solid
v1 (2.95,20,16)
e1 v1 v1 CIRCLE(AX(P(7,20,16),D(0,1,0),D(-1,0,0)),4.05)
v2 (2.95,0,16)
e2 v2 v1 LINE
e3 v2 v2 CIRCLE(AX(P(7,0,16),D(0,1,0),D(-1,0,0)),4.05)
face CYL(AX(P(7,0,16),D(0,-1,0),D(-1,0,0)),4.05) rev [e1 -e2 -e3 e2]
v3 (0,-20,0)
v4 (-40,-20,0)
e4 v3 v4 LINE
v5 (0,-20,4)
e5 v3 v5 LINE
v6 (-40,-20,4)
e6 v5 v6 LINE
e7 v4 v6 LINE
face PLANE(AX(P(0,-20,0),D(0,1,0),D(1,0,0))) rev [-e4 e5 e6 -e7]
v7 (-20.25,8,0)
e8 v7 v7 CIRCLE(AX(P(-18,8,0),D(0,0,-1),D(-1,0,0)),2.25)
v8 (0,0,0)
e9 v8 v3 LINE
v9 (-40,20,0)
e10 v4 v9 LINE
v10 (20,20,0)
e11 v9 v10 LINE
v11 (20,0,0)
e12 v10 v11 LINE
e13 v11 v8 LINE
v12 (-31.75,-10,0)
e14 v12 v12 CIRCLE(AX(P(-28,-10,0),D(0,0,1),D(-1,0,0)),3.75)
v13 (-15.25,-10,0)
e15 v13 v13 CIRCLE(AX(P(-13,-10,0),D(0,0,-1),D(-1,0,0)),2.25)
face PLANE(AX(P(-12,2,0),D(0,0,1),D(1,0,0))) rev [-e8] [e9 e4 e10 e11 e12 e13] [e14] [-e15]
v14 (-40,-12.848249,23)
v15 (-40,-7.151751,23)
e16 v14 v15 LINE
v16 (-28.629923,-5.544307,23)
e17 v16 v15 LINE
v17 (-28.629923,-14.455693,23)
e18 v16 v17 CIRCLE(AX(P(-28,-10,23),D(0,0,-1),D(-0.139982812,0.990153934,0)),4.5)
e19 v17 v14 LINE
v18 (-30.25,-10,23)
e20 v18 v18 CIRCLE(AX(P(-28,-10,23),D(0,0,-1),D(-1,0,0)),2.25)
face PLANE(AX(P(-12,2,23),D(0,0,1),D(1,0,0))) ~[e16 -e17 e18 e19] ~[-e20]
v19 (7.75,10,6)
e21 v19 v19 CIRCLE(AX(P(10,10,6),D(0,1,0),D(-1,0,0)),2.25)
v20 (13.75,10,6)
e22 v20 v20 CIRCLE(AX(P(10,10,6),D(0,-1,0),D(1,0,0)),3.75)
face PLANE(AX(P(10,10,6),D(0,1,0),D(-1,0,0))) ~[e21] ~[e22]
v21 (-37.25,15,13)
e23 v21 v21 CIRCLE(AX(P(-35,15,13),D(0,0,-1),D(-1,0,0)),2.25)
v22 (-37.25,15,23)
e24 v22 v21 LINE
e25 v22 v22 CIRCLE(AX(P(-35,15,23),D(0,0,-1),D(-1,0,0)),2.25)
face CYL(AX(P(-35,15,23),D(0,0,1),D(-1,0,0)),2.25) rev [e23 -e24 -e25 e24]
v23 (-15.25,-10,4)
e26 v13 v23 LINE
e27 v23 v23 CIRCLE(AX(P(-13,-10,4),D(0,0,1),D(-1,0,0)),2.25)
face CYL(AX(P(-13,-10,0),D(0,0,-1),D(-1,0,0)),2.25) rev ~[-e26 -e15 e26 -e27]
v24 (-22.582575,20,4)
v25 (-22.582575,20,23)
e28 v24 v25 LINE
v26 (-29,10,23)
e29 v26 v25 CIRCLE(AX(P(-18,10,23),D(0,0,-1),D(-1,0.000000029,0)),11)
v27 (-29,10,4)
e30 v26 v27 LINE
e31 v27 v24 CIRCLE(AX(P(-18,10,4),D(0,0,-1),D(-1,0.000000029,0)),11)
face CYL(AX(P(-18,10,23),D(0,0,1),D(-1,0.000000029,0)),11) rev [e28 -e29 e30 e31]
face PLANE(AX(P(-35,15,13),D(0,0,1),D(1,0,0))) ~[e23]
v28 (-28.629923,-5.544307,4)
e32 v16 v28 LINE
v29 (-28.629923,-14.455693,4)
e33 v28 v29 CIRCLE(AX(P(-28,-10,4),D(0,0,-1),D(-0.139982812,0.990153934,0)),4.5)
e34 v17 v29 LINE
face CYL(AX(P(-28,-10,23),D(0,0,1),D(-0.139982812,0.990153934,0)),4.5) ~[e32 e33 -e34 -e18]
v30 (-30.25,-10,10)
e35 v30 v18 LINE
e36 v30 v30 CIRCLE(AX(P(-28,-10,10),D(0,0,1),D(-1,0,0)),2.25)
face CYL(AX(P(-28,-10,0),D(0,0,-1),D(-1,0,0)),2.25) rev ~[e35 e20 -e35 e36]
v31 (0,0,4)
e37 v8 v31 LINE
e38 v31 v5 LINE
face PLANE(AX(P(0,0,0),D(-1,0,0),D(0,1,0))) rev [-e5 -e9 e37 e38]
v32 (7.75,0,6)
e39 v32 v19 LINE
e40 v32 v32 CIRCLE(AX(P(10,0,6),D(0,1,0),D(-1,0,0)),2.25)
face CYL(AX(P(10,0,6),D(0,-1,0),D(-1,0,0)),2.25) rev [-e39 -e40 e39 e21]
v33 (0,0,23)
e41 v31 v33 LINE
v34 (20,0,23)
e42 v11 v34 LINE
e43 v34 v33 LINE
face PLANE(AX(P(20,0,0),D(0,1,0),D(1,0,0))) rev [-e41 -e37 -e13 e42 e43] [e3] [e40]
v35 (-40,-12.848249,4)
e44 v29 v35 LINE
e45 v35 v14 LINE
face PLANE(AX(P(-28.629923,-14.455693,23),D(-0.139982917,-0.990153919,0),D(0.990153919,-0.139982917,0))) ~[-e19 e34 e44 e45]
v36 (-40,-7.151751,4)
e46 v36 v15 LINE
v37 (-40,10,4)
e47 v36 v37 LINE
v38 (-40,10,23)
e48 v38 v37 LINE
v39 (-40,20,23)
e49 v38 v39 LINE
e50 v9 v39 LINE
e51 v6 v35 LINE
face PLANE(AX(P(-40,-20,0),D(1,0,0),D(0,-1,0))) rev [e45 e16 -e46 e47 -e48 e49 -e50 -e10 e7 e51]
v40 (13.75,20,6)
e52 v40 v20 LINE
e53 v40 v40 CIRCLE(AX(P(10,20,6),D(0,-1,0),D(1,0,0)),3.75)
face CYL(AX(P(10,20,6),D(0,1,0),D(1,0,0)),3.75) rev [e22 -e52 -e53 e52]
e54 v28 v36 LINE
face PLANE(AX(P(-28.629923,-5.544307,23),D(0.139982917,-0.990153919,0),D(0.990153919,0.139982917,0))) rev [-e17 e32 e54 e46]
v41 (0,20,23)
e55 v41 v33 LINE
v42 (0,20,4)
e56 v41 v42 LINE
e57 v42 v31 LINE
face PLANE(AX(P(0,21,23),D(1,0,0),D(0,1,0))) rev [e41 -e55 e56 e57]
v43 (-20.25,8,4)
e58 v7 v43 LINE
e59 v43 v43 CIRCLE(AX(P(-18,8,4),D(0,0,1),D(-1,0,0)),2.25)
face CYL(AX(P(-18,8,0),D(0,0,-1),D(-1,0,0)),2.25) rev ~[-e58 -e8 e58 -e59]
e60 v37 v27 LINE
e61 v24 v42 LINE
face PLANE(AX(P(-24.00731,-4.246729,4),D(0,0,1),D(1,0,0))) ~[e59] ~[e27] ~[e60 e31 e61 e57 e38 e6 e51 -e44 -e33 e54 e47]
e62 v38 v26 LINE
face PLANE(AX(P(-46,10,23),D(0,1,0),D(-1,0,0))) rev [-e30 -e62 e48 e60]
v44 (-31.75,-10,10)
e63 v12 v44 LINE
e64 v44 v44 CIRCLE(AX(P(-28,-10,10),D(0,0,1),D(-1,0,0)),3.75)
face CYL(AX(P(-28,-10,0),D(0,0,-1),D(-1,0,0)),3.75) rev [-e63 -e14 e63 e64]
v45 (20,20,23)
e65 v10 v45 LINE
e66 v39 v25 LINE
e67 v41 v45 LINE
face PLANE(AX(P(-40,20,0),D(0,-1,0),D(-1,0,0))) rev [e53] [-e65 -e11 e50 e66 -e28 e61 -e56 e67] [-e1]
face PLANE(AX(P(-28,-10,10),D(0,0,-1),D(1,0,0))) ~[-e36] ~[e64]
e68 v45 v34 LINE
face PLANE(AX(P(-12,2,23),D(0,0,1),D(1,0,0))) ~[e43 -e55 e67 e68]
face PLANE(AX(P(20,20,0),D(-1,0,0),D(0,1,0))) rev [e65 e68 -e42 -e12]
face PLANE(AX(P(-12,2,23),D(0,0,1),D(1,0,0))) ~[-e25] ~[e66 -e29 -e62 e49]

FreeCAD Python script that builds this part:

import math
import FreeCAD as App
import Part
import Sketcher

V = App.Vector


def add_polygon(sketch, points):
    """Adds a closed chain of lines whose ends are joined by coincident constraints."""
    first, n = sketch.GeometryCount, len(points)
    for a, b in zip(points, points[1:] + points[:1]):
        sketch.addGeometry(Part.LineSegment(App.Vector(*a, 0), App.Vector(*b, 0)), False)
    for i in range(n):
        sketch.addConstraint(Sketcher.Constraint("Coincident", first + i, 2, first + (i + 1) % n, 1))

doc = App.newDocument("Part")
body = doc.addObject("PartDesign::Body", "Body")

# Sketch on XY plane
sketch1 = body.newObject("Sketcher::SketchObject", "Sketch")
sketch1.AttachmentSupport = (doc.getObject("XY_Plane"), [""])
sketch1.MapMode = "FlatFace"
add_polygon(sketch1, [(0, -20), (40, -20), (40, 20), (-20, 20), (-20, 0), (0, 0)])  # lines 0-5
sketch1.addGeometry(Part.Circle(V(13, -10, 0), V(0, 0, 1), 2.2), False)  # 6
sketch1.addGeometry(Part.Circle(V(28, -10, 0), V(0, 0, 1), 2.2), False)  # 7
sketch1.addGeometry(Part.Circle(V(18, 8, 0), V(0, 0, 1), 2.2), False)  # 8
sketch1.addConstraint([
    Sketcher.Constraint("Horizontal", 0),
    Sketcher.Constraint("Vertical", 1),
    Sketcher.Constraint("Horizontal", 2),
    Sketcher.Constraint("Vertical", 3),
    Sketcher.Constraint("Horizontal", 4),
    Sketcher.Constraint("Vertical", 5),
    Sketcher.Constraint("Coincident", 4, 2, -1, 1),
    Sketcher.Constraint("Equal", 6, 7),
    Sketcher.Constraint("Equal", 7, 8),
    Sketcher.Constraint("Horizontal", 6, 3, 7, 3),
    Sketcher.Constraint("Equal", 0, 1),
    Sketcher.Constraint("Equal", 4, 3),
    Sketcher.Constraint("Equal", 3, 5),
    Sketcher.Constraint("Diameter", 6, 4.5),
    Sketcher.Constraint("DistanceX", 0, 1, 0, 2, 40.0),
    Sketcher.Constraint("DistanceX", -1, 1, 6, 3, 13.0),
    Sketcher.Constraint("DistanceY", 6, 3, -1, 1, 10.0),
    Sketcher.Constraint("DistanceX", -1, 1, 7, 3, 28.0),
    Sketcher.Constraint("DistanceX", -1, 1, 8, 3, 18.0),
    Sketcher.Constraint("DistanceY", -1, 1, 8, 3, 8.0),
])
pad1 = body.newObject("PartDesign::Pad", "Pad")
pad1.Profile = sketch1
pad1.Length = 23

# Sketch on XY plane
sketch2 = body.newObject("Sketcher::SketchObject", "Sketch001")
sketch2.AttachmentSupport = (doc.getObject("XY_Plane"), [""])
sketch2.MapMode = "FlatFace"
sketch2.AttachmentOffset = App.Placement(V(0, 0, 23), App.Rotation())
sketch2.addGeometry([
    Part.LineSegment(V(46, 10, 0), V(29, 10, 0)),  # 0
    Part.ArcOfCircle(Part.Circle(V(18, 10, 0), V(0, 0, 1), 11), math.radians(0), math.radians(90)),  # 1
    Part.LineSegment(V(18, 21, 0), V(0, 21, 0)),  # 2
    Part.LineSegment(V(0, 21, 0), V(0, -23, 0)),  # 3
    Part.LineSegment(V(0, -23, 0), V(46, -23, 0)),  # 4
    Part.LineSegment(V(46, -23, 0), V(46, -12, 0)),  # 5
    Part.LineSegment(V(46, -12, 0), V(28.6, -14.5, 0)),  # 6
    Part.ArcOfCircle(Part.Circle(V(28, -10, 0), V(0, 0, 1), 4.5), math.radians(82), math.radians(278)),  # 7
    Part.LineSegment(V(28.6, -5.5, 0), V(46, -8, 0)),  # 8
    Part.LineSegment(V(46, -8, 0), V(46, 10, 0)),  # 9
], False)
sketch2.addConstraint([
    Sketcher.Constraint("Coincident", 0, 2, 1, 1),
    Sketcher.Constraint("Coincident", 1, 2, 2, 1),
    Sketcher.Constraint("Coincident", 2, 2, 3, 1),
    Sketcher.Constraint("Coincident", 3, 2, 4, 1),
    Sketcher.Constraint("Coincident", 4, 2, 5, 1),
    Sketcher.Constraint("Coincident", 5, 2, 6, 1),
    Sketcher.Constraint("Tangent", 6, 2, 7, 2),
    Sketcher.Constraint("Tangent", 7, 1, 8, 1),
    Sketcher.Constraint("Coincident", 8, 2, 9, 1),
    Sketcher.Constraint("Coincident", 9, 2, 0, 1),
    Sketcher.Constraint("Horizontal", 0),
    Sketcher.Constraint("Horizontal", 2),
    Sketcher.Constraint("Vertical", 3),
    Sketcher.Constraint("Horizontal", 4),
    Sketcher.Constraint("Vertical", 5),
    Sketcher.Constraint("Vertical", 9),
    Sketcher.Constraint("PointOnObject", 2, 2, -2),
    Sketcher.Constraint("Horizontal", 1, 3, 0, 2),
    Sketcher.Constraint("Vertical", 6, 2, 7, 1),
    Sketcher.Constraint("Vertical", 5, 2, 8, 2),
    Sketcher.Constraint("Radius", 1, 11.0),
    Sketcher.Constraint("Radius", 7, 4.5),
    Sketcher.Constraint("DistanceX", 0, 2, 0, 1, 17.0),
    Sketcher.Constraint("DistanceX", 4, 1, 4, 2, 46.0),
    Sketcher.Constraint("DistanceY", 3, 2, 3, 1, 44.0),
    Sketcher.Constraint("DistanceY", 5, 1, 5, 2, 11.0),
    Sketcher.Constraint("DistanceY", 9, 1, 9, 2, 18.0),
    Sketcher.Constraint("DistanceY", -1, 1, 1, 3, 10.0),
    Sketcher.Constraint("DistanceX", -1, 1, 7, 3, 28.0),
    Sketcher.Constraint("DistanceX", 2, 2, 2, 1, 17.999956),
])
pocket1 = body.newObject("PartDesign::Pocket", "Pocket")
pocket1.Profile = sketch2
pocket1.Length = 19

# Sketch on XZ plane
sketch3 = body.newObject("Sketcher::SketchObject", "Sketch002")
sketch3.AttachmentSupport = (doc.getObject("XZ_Plane"), [""])
sketch3.MapMode = "FlatFace"
sketch3.addGeometry([
    Part.Circle(V(-7, 16, 0), V(0, 0, 1), 4),
    Part.Circle(V(-10, 6, 0), V(0, 0, 1), 2.2),
], False)
sketch3.addConstraint([
    Sketcher.Constraint("Diameter", 0, 8.1),
    Sketcher.Constraint("Diameter", 1, 4.5),
    Sketcher.Constraint("DistanceX", 0, 3, -1, 1, 7.0),
    Sketcher.Constraint("DistanceY", -1, 1, 0, 3, 16.0),
    Sketcher.Constraint("DistanceX", 1, 3, -1, 1, 10.0),
    Sketcher.Constraint("DistanceY", -1, 1, 1, 3, 6.0),
])
pocket2 = body.newObject("PartDesign::Pocket", "Pocket001")
pocket2.Profile = sketch3
pocket2.Type = "ThroughAll"

# Sketch on XY plane
sketch4 = body.newObject("Sketcher::SketchObject", "Sketch003")
sketch4.AttachmentSupport = (doc.getObject("XY_Plane"), [""])
sketch4.MapMode = "FlatFace"
sketch4.AttachmentOffset = App.Placement(V(0, 0, 23), App.Rotation())
sketch4.addGeometry(Part.Circle(V(35, 15, 0), V(0, 0, 1), 2.2), False)
sketch4.addConstraint([
    Sketcher.Constraint("Diameter", 0, 4.5),
    Sketcher.Constraint("DistanceX", -1, 1, 0, 3, 35.0),
    Sketcher.Constraint("DistanceY", -1, 1, 0, 3, 15.0),
])
pocket3 = body.newObject("PartDesign::Pocket", "Pocket002")
pocket3.Profile = sketch4
pocket3.Length = 10

# Sketch on XZ plane
sketch5 = body.newObject("Sketcher::SketchObject", "Sketch004")
sketch5.AttachmentSupport = (doc.getObject("XZ_Plane"), [""])
sketch5.MapMode = "FlatFace"
sketch5.AttachmentOffset = App.Placement(V(0, 0, -20), App.Rotation())
sketch5.addGeometry(Part.Circle(V(-10, 6, 0), V(0, 0, 1), 3.8), False)
sketch5.addConstraint([
    Sketcher.Constraint("Diameter", 0, 7.5),
    Sketcher.Constraint("DistanceX", 0, 3, -1, 1, 10.0),
    Sketcher.Constraint("DistanceY", -1, 1, 0, 3, 6.0),
])
pocket4 = body.newObject("PartDesign::Pocket", "Pocket003")
pocket4.Profile = sketch5
pocket4.Length = 10
pocket4.Reversed = True

# Sketch on XY plane
sketch6 = body.newObject("Sketcher::SketchObject", "Sketch005")
sketch6.AttachmentSupport = (doc.getObject("XY_Plane"), [""])
sketch6.MapMode = "FlatFace"
sketch6.addGeometry(Part.Circle(V(28, -10, 0), V(0, 0, 1), 3.8), False)
sketch6.addConstraint([
    Sketcher.Constraint("Diameter", 0, 7.5),
    Sketcher.Constraint("DistanceX", -1, 1, 0, 3, 28.0),
    Sketcher.Constraint("DistanceY", 0, 3, -1, 1, 10.0),
])
pocket5 = body.newObject("PartDesign::Pocket", "Pocket004")
pocket5.Profile = sketch6
pocket5.Length = 10
pocket5.Reversed = True
body2 = doc.addObject("PartDesign::Body", "Body001")
doc.recompute()

mirroring = doc.addObject("Part::Mirroring", "Mirroring")
mirroring.Source = body
mirroring.Base = V(0, 0, 0)
mirroring.Normal = V(1, 0, 0)
body2.BaseFeature = mirroring
doc.recompute()
body.Visibility = False
mirroring.Visibility = False

doc.recompute()
